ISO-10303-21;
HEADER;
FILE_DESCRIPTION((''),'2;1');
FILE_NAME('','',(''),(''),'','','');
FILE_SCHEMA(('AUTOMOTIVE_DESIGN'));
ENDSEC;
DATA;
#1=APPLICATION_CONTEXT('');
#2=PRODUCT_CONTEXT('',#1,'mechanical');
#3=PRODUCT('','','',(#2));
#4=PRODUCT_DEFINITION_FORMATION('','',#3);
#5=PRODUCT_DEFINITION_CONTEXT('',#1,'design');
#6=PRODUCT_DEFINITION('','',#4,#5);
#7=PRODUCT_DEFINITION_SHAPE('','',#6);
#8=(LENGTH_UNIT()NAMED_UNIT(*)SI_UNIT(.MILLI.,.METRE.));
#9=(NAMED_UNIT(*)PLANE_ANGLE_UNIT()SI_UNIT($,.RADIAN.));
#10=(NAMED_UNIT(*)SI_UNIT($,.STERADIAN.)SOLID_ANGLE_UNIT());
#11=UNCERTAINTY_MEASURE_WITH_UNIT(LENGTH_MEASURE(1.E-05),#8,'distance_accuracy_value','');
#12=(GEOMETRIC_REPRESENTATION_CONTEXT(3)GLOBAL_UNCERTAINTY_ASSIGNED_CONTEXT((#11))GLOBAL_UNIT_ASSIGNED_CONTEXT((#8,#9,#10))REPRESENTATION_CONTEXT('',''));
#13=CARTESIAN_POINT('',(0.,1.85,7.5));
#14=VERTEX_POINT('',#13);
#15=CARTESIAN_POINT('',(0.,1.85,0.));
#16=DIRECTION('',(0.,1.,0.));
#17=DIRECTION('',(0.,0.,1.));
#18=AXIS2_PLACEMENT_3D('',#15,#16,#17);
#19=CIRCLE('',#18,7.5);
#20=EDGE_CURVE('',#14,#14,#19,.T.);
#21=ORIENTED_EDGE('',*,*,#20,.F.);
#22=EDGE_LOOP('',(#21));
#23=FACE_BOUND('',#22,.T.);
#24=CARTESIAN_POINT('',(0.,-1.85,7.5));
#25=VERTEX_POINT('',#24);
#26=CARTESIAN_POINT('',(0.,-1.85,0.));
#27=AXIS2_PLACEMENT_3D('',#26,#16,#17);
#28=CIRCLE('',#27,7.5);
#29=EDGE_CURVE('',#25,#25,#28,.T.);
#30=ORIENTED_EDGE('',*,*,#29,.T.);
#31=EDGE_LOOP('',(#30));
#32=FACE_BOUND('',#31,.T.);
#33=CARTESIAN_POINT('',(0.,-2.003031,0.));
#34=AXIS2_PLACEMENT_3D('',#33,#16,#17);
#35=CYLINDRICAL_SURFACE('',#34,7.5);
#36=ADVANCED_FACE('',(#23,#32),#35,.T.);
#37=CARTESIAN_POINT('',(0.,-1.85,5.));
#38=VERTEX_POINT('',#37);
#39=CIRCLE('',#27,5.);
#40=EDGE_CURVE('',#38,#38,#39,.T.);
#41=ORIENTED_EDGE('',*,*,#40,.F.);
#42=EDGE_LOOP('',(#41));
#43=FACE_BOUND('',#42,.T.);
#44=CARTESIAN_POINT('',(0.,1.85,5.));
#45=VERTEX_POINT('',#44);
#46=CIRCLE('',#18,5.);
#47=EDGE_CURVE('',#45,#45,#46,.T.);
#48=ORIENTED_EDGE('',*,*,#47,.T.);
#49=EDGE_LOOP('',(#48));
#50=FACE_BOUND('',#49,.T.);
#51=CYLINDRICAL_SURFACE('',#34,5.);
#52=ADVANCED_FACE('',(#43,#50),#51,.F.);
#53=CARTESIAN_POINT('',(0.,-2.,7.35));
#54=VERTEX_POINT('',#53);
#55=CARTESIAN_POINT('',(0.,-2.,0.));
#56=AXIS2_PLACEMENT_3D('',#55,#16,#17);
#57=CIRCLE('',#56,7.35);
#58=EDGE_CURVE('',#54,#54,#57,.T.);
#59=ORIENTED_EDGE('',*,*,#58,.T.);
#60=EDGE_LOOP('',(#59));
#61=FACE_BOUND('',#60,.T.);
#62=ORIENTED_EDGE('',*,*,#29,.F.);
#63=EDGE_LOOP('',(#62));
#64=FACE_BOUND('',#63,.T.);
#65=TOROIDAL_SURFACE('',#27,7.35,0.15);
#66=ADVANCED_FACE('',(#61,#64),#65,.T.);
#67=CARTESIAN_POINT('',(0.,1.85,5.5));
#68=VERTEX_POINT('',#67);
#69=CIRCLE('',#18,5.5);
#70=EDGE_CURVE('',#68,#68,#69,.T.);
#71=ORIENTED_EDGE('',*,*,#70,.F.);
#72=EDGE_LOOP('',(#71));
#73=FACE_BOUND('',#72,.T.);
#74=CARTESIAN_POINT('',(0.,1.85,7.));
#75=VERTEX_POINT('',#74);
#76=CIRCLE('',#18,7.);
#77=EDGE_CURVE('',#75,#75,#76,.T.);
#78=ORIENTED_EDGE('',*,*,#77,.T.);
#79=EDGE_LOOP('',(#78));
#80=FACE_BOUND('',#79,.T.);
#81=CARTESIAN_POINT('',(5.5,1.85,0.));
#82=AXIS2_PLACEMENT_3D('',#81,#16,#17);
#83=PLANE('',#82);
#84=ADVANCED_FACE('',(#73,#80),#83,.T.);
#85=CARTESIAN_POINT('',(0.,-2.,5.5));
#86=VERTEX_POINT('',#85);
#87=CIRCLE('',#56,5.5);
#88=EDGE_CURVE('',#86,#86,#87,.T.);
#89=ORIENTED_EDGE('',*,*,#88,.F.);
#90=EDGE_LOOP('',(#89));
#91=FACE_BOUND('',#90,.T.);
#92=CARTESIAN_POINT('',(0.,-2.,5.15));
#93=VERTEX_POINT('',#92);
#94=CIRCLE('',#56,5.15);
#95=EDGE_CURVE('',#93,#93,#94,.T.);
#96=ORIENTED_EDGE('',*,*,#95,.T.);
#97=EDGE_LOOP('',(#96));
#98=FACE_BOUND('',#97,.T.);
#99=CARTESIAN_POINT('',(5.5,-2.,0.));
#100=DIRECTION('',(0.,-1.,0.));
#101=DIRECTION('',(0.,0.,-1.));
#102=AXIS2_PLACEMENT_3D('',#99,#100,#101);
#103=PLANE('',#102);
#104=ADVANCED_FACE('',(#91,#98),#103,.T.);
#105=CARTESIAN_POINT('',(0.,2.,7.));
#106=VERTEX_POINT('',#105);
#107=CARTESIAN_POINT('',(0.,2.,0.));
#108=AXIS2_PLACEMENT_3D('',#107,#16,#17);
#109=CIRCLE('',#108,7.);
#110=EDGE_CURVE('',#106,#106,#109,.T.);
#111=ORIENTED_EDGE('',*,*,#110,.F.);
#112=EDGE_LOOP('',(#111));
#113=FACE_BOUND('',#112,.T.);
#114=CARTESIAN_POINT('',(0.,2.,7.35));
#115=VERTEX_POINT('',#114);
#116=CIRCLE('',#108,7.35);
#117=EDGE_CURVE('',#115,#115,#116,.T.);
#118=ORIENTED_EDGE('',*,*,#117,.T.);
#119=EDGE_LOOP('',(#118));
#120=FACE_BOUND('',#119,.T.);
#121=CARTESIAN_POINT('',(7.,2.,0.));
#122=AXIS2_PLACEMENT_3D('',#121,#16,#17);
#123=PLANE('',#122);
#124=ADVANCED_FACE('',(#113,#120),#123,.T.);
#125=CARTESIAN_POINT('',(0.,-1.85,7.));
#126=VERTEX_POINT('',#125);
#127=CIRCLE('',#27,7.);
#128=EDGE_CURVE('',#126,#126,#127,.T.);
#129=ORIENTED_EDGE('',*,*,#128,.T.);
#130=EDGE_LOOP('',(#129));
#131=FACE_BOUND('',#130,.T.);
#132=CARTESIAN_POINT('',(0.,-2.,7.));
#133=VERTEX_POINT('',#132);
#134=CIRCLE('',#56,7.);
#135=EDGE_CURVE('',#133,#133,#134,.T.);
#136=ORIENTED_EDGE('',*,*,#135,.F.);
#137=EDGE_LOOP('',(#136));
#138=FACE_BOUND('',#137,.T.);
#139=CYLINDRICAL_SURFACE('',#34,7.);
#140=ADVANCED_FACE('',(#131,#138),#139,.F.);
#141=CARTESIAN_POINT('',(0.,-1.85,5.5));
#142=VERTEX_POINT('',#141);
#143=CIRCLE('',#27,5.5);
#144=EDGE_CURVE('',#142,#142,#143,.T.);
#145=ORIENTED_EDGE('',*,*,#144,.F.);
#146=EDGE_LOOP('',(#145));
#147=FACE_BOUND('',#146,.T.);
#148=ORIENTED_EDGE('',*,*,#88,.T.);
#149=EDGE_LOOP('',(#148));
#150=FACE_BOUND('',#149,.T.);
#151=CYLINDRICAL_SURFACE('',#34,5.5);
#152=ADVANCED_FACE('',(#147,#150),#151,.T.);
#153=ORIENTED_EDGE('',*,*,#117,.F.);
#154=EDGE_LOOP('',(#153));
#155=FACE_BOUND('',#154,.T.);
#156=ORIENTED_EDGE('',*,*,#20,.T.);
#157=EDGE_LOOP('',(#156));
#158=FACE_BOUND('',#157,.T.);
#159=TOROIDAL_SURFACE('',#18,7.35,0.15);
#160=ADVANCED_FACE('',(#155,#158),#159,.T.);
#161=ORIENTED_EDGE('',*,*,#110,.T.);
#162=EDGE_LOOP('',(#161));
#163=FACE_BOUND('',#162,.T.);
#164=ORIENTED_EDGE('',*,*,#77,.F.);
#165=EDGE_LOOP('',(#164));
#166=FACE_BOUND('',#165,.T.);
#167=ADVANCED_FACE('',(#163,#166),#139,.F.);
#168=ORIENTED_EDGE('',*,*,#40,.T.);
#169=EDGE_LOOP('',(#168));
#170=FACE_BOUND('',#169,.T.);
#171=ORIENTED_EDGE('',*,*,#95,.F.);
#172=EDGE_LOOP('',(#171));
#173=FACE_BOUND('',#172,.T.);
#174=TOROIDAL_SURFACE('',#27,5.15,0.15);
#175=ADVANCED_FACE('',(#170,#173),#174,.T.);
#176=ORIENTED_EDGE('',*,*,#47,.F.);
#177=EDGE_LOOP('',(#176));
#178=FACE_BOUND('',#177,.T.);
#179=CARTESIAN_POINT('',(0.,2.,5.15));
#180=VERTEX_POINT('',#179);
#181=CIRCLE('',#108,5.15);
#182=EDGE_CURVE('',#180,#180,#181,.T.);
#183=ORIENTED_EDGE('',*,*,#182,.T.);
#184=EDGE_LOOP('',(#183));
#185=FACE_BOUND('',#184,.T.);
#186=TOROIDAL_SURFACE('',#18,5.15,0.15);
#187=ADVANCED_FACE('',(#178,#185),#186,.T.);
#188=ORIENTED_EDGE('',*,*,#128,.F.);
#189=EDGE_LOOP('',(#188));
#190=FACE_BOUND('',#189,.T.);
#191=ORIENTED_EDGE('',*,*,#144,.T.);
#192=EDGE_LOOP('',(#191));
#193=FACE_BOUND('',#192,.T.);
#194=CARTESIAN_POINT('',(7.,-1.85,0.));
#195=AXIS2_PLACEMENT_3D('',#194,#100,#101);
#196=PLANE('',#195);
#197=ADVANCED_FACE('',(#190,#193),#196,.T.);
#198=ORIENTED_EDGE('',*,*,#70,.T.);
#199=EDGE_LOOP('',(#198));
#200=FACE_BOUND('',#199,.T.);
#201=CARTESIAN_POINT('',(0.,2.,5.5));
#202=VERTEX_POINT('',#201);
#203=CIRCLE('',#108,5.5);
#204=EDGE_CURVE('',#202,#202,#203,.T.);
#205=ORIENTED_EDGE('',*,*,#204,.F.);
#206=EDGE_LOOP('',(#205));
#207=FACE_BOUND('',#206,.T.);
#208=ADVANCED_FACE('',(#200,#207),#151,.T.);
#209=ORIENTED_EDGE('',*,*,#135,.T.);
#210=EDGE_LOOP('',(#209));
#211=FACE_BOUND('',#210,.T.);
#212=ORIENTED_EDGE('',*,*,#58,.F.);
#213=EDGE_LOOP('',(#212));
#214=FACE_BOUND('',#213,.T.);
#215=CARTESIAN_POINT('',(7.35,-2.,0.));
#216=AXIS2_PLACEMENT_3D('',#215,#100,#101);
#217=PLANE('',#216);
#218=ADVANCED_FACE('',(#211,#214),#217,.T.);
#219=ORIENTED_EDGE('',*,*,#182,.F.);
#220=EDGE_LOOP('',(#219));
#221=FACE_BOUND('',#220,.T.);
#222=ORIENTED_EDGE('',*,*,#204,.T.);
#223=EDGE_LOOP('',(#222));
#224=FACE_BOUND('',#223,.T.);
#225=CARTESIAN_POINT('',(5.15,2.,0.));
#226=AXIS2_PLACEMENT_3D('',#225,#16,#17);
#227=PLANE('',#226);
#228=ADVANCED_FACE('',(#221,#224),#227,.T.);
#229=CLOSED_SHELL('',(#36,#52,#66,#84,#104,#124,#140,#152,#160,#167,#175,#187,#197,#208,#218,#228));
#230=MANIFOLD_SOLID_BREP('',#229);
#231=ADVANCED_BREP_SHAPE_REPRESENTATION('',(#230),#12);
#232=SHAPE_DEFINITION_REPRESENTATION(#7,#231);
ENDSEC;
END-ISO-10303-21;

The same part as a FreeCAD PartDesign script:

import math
import FreeCAD as App
import Part
import Sketcher

V = App.Vector
Q = App.Units.Quantity

doc = App.newDocument("Part")
params = doc.addObject("Spreadsheet::Sheet", "Params")
for row, (alias, value) in enumerate([
    ("sketch1_radius", "0.15 mm"),
    ("sketch1_width", "1.5 mm"),
    ("sketch1_height", "3.7 mm"),
    ("revolution_angle", "360 deg"),
], start=1):
    params.set(f"A{row}", alias)
    params.set(f"B{row}", "=" + value)
    params.setAlias(f"B{row}", alias)

body = doc.addObject("PartDesign::Body", "Body")

sketch1 = body.newObject("Sketcher::SketchObject", "Sketch")
sketch1.AttachmentSupport = (doc.getObject("XY_Plane"), [""])
sketch1.MapMode = "FlatFace"
sketch1.addGeometry(Part.LineSegment(V(5, -1.85, 0), V(5, 1.85, 0)), False)
sketch1.addGeometry(Part.ArcOfCircle(Part.Circle(V(5.15, 1.85, 0), V(0, 0, 1), 0.15), math.radians(90), math.radians(180)), False)
sketch1.addGeometry(Part.LineSegment(V(5.15, 2, 0), V(5.5, 2, 0)), False)
sketch1.addGeometry(Part.LineSegment(V(5.5, 2, 0), V(5.5, 1.85, 0)), False)
sketch1.addGeometry(Part.LineSegment(V(5.5, 1.85, 0), V(7, 1.85, 0)), False)
sketch1.addGeometry(Part.LineSegment(V(7, 1.85, 0), V(7, 2, 0)), False)
sketch1.addGeometry(Part.LineSegment(V(7, 2, 0), V(7.35, 2, 0)), False)
sketch1.addGeometry(Part.ArcOfCircle(Part.Circle(V(7.35, 1.85, 0), V(0, 0, 1), 0.15), math.radians(0), math.radians(90)), False)
sketch1.addGeometry(Part.LineSegment(V(7.5, 1.85, 0), V(7.5, -1.85, 0)), False)
sketch1.addGeometry(Part.ArcOfCircle(Part.Circle(V(7.35, -1.85, 0), V(0, 0, 1), 0.15), math.radians(-90), math.radians(0)), False)
sketch1.addGeometry(Part.LineSegment(V(7.35, -2, 0), V(7, -2, 0)), False)
sketch1.addGeometry(Part.LineSegment(V(7, -2, 0), V(7, -1.85, 0)), False)
sketch1.addGeometry(Part.LineSegment(V(7, -1.85, 0), V(5.5, -1.85, 0)), False)
sketch1.addGeometry(Part.LineSegment(V(5.5, -1.85, 0), V(5.5, -2, 0)), False)
sketch1.addGeometry(Part.LineSegment(V(5.5, -2, 0), V(5.15, -2, 0)), False)
sketch1.addGeometry(Part.ArcOfCircle(Part.Circle(V(5.15, -1.85, 0), V(0, 0, 1), 0.15), math.radians(-180), math.radians(-90)), False)
sketch1.addConstraint(Sketcher.Constraint("Tangent", 0, 2, 1, 2))
sketch1.addConstraint(Sketcher.Constraint("Tangent", 1, 1, 2, 1))
sketch1.addConstraint(Sketcher.Constraint("Coincident", 2, 2, 3, 1))
sketch1.addConstraint(Sketcher.Constraint("Coincident", 3, 2, 4, 1))
sketch1.addConstraint(Sketcher.Constraint("Coincident", 4, 2, 5, 1))
sketch1.addConstraint(Sketcher.Constraint("Coincident", 5, 2, 6, 1))
sketch1.addConstraint(Sketcher.Constraint("Tangent", 6, 2, 7, 2))
sketch1.addConstraint(Sketcher.Constraint("Tangent", 7, 1, 8, 1))
sketch1.addConstraint(Sketcher.Constraint("Tangent", 8, 2, 9, 2))
sketch1.addConstraint(Sketcher.Constraint("Tangent", 9, 1, 10, 1))
sketch1.addConstraint(Sketcher.Constraint("Coincident", 10, 2, 11, 1))
sketch1.addConstraint(Sketcher.Constraint("Coincident", 11, 2, 12, 1))
sketch1.addConstraint(Sketcher.Constraint("Coincident", 12, 2, 13, 1))
sketch1.addConstraint(Sketcher.Constraint("Coincident", 13, 2, 14, 1))
sketch1.addConstraint(Sketcher.Constraint("Tangent", 14, 2, 15, 2))
sketch1.addConstraint(Sketcher.Constraint("Tangent", 15, 1, 0, 1))
sketch1.addConstraint(Sketcher.Constraint("Vertical", 0))
sketch1.addConstraint(Sketcher.Constraint("Horizontal", 2))
sketch1.addConstraint(Sketcher.Constraint("Vertical", 3))
sketch1.addConstraint(Sketcher.Constraint("Horizontal", 4))
sketch1.addConstraint(Sketcher.Constraint("Vertical", 5))
sketch1.addConstraint(Sketcher.Constraint("Horizontal", 6))
sketch1.addConstraint(Sketcher.Constraint("Vertical", 8))
sketch1.addConstraint(Sketcher.Constraint("Horizontal", 10))
sketch1.addConstraint(Sketcher.Constraint("Vertical", 11))
sketch1.addConstraint(Sketcher.Constraint("Horizontal", 12))
sketch1.addConstraint(Sketcher.Constraint("Vertical", 13))
sketch1.addConstraint(Sketcher.Constraint("Horizontal", 14))
sketch1.addConstraint(Sketcher.Constraint("Equal", 1, 7))
sketch1.addConstraint(Sketcher.Constraint("Equal", 7, 9))
sketch1.addConstraint(Sketcher.Constraint("Equal", 9, 15))
sketch1.addConstraint(Sketcher.Constraint("Symmetric", 5, 2, 10, 2, -1))
sketch1.addConstraint(Sketcher.Constraint("Symmetric", 3, 2, 12, 2, -1))
sketch1.addConstraint(Sketcher.Constraint("Horizontal", 1, 3, 7, 3))
sketch1.addConstraint(Sketcher.Constraint("Horizontal", 9, 3, 15, 3))
sketch1.addConstraint(Sketcher.Constraint("Horizontal", 0, 2, 3, 2))
sketch1.addConstraint(Sketcher.Constraint("Equal", 2, 6))
sketch1.addConstraint(Sketcher.Constraint("Radius", 1, Q("0.15 mm")))
sketch1.addConstraint(Sketcher.Constraint("DistanceX", 4, 1, 4, 2, Q("1.5 mm")))
sketch1.addConstraint(Sketcher.Constraint("DistanceY", 0, 1, 0, 2, Q("3.7 mm")))
sketch1.addConstraint(Sketcher.Constraint("DistanceX", -1, 1, 0, 2, Q("5 mm")))
sketch1.addConstraint(Sketcher.Constraint("DistanceX", -1, 1, 4, 2, Q("7 mm")))
sketch1.setExpression("Constraints[37]", "Params.sketch1_radius")
sketch1.setExpression("Constraints[38]", "Params.sketch1_width")
sketch1.setExpression("Constraints[39]", "Params.sketch1_height")
revolution = body.newObject("PartDesign::Revolution", "Revolution")
revolution.Profile = sketch1
revolution.ReferenceAxis = (sketch1, ["V_Axis"])
revolution.setExpression("Angle", "Params.revolution_angle")

doc.recompute()
